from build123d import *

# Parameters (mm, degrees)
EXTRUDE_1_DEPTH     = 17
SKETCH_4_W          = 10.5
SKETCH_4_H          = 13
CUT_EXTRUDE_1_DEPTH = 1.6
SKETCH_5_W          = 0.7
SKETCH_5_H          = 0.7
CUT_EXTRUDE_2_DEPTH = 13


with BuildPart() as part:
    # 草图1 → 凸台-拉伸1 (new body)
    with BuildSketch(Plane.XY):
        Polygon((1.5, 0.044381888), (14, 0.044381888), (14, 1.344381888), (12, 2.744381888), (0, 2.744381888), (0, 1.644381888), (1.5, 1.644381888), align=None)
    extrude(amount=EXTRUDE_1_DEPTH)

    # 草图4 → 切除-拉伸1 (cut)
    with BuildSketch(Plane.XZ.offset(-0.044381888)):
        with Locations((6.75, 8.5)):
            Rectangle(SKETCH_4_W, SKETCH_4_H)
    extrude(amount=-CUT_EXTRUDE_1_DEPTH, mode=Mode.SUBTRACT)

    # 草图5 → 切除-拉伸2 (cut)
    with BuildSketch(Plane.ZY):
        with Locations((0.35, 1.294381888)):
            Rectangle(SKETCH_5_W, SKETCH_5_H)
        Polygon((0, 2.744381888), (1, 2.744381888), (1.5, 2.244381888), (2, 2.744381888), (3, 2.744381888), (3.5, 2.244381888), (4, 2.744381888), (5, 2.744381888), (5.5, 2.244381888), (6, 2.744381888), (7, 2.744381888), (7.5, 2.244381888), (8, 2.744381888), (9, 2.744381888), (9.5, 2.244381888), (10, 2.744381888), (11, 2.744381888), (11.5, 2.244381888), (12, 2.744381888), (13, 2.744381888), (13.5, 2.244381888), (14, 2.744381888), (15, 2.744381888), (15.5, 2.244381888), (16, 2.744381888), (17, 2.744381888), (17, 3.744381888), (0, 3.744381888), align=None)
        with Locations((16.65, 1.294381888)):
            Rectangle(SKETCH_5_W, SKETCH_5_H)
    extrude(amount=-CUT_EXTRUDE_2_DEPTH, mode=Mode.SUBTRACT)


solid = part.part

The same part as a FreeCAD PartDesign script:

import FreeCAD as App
import Part
import Sketcher
Q = App.Units.Quantity

doc = App.newDocument("Part")
body = doc.addObject("PartDesign::Body", "Body")

# Sketch on XY plane
sketch1 = body.newObject("Sketcher::SketchObject", "Sketch")
sketch1.AttachmentSupport = (doc.getObject("XY_Plane"), [""])
sketch1.MapMode = "FlatFace"
sketch1.addGeometry([
    Part.LineSegment(App.Vector(1.5, 0, 0), App.Vector(14, 0, 0)),  # 0
    Part.LineSegment(App.Vector(14, 0, 0), App.Vector(14, 1.3, 0)),  # 1
    Part.LineSegment(App.Vector(14, 1.3, 0), App.Vector(12, 2.7, 0)),  # 2
    Part.LineSegment(App.Vector(12, 2.7, 0), App.Vector(0, 2.7, 0)),  # 3
    Part.LineSegment(App.Vector(0, 2.7, 0), App.Vector(0, 1.6, 0)),  # 4
    Part.LineSegment(App.Vector(0, 1.6, 0), App.Vector(1.5, 1.6, 0)),  # 5
    Part.LineSegment(App.Vector(1.5, 1.6, 0), App.Vector(1.5, 0, 0)),  # 6
], False)
sketch1.addConstraint([
    Sketcher.Constraint("Coincident", 0, 2, 1, 1),
    Sketcher.Constraint("Coincident", 1, 2, 2, 1),
    Sketcher.Constraint("Coincident", 2, 2, 3, 1),
    Sketcher.Constraint("Coincident", 3, 2, 4, 1),
    Sketcher.Constraint("Coincident", 4, 2, 5, 1),
    Sketcher.Constraint("Coincident", 5, 2, 6, 1),
    Sketcher.Constraint("Coincident", 6, 2, 0, 1),
    Sketcher.Constraint("Horizontal", 0),
    Sketcher.Constraint("Vertical", 1),
    Sketcher.Constraint("Horizontal", 3),
    Sketcher.Constraint("Vertical", 4),
    Sketcher.Constraint("Horizontal", 5),
    Sketcher.Constraint("Vertical", 6),
    Sketcher.Constraint("PointOnObject", 3, 2, -2),
    Sketcher.Constraint("DistanceX", 3, 2, 3, 1, Q("12 mm")),
    Sketcher.Constraint("DistanceX", 0, 1, 0, 2, Q("12.5 mm")),
    Sketcher.Constraint("DistanceX", 5, 1, 5, 2, Q("1.5 mm")),
    Sketcher.Constraint("DistanceY", 1, 1, 1, 2, Q("1.3 mm")),
    Sketcher.Constraint("DistanceY", 4, 2, 4, 1, Q("1.1 mm")),
    Sketcher.Constraint("DistanceY", 6, 2, 6, 1, Q("1.6 mm")),
    Sketcher.Constraint("DistanceY", -1, 1, 0, 2, Q("0.044382 mm")),
])
pad1 = body.newObject("PartDesign::Pad", "Pad")
pad1.Profile = sketch1
pad1.Length = 17

# Sketch on XZ plane
sketch2 = body.newObject("Sketcher::SketchObject", "Sketch001")
sketch2.AttachmentSupport = (doc.getObject("XZ_Plane"), [""])
sketch2.MapMode = "FlatFace"
sketch2.AttachmentOffset = App.Placement(App.Vector(0, 0, -0.044382), App.Rotation())
sketch2.addGeometry([
    Part.LineSegment(App.Vector(2, 15, 0), App.Vector(2, 2, 0)),
    Part.LineSegment(App.Vector(2, 2, 0), App.Vector(12, 2, 0)),
    Part.LineSegment(App.Vector(12, 2, 0), App.Vector(12, 15, 0)),
    Part.LineSegment(App.Vector(12, 15, 0), App.Vector(2, 15, 0)),
], False)
sketch2.addConstraint([
    Sketcher.Constraint("Coincident", 0, 2, 1, 1),
    Sketcher.Constraint("Coincident", 1, 2, 2, 1),
    Sketcher.Constraint("Coincident", 2, 2, 3, 1),
    Sketcher.Constraint("Coincident", 3, 2, 0, 1),
    Sketcher.Constraint("Vertical", 0),
    Sketcher.Constraint("Horizontal", 1),
    Sketcher.Constraint("Vertical", 2),
    Sketcher.Constraint("Horizontal", 3),
    Sketcher.Constraint("DistanceY", 0, 2, 0, 1, Q("13 mm")),
    Sketcher.Constraint("DistanceX", 1, 1, 1, 2, Q("10.5 mm")),
    Sketcher.Constraint("DistanceY", -1, 1, 0, 2, Q("2 mm")),
    Sketcher.Constraint("DistanceX", -1, 1, 1, 2, Q("12 mm")),
])
pocket1 = body.newObject("PartDesign::Pocket", "Pocket")
pocket1.Profile = sketch2
pocket1.Length = 1.6

# Sketch on YZ plane
sketch3 = body.newObject("Sketcher::SketchObject", "Sketch002")
sketch3.AttachmentSupport = (doc.getObject("YZ_Plane"), [""])
sketch3.MapMode = "FlatFace"
sketch3.addGeometry([
    Part.LineSegment(App.Vector(1.6, 0, 0), App.Vector(0.9, 0, 0)),  # 0
    Part.LineSegment(App.Vector(0.9, 0, 0), App.Vector(0.9, 0.7, 0)),  # 1
    Part.LineSegment(App.Vector(0.9, 0.7, 0), App.Vector(1.6, 0.7, 0)),  # 2
    Part.LineSegment(App.Vector(1.6, 0.7, 0), App.Vector(1.6, 0, 0)),  # 3
    Part.LineSegment(App.Vector(2.7, 0, 0), App.Vector(2.7, 1, 0)),  # 4
    Part.LineSegment(App.Vector(2.7, 1, 0), App.Vector(2.2, 1.5, 0)),  # 5
    Part.LineSegment(App.Vector(2.2, 1.5, 0), App.Vector(2.7, 2, 0)),  # 6
    Part.LineSegment(App.Vector(2.7, 2, 0), App.Vector(2.7, 3, 0)),  # 7
    Part.LineSegment(App.Vector(2.7, 3, 0), App.Vector(2.2, 3.5, 0)),  # 8
    Part.LineSegment(App.Vector(2.2, 3.5, 0), App.Vector(2.7, 4, 0)),  # 9
    Part.LineSegment(App.Vector(2.7, 4, 0), App.Vector(2.7, 5, 0)),  # 10
    Part.LineSegment(App.Vector(2.7, 5, 0), App.Vector(2.2, 5.5, 0)),  # 11
    Part.LineSegment(App.Vector(2.2, 5.5, 0), App.Vector(2.7, 6, 0)),  # 12
    Part.LineSegment(App.Vector(2.7, 6, 0), App.Vector(2.7, 7, 0)),  # 13
    Part.LineSegment(App.Vector(2.7, 7, 0), App.Vector(2.2, 7.5, 0)),  # 14
    Part.LineSegment(App.Vector(2.2, 7.5, 0), App.Vector(2.7, 8, 0)),  # 15
    Part.LineSegment(App.Vector(2.7, 8, 0), App.Vector(2.7, 9, 0)),  # 16
    Part.LineSegment(App.Vector(2.7, 9, 0), App.Vector(2.2, 9.5, 0)),  # 17
    Part.LineSegment(App.Vector(2.2, 9.5, 0), App.Vector(2.7, 10, 0)),  # 18
    Part.LineSegment(App.Vector(2.7, 10, 0), App.Vector(2.7, 11, 0)),  # 19
    Part.LineSegment(App.Vector(2.7, 11, 0), App.Vector(2.2, 11.5, 0)),  # 20
    Part.LineSegment(App.Vector(2.2, 11.5, 0), App.Vector(2.7, 12, 0)),  # 21
    Part.LineSegment(App.Vector(2.7, 12, 0), App.Vector(2.7, 13, 0)),  # 22
    Part.LineSegment(App.Vector(2.7, 13, 0), App.Vector(2.2, 13.5, 0)),  # 23
    Part.LineSegment(App.Vector(2.2, 13.5, 0), App.Vector(2.7, 14, 0)),  # 24
    Part.LineSegment(App.Vector(2.7, 14, 0), App.Vector(2.7, 15, 0)),  # 25
    Part.LineSegment(App.Vector(2.7, 15, 0), App.Vector(2.2, 15.5, 0)),  # 26
    Part.LineSegment(App.Vector(2.2, 15.5, 0), App.Vector(2.7, 16, 0)),  # 27
    Part.LineSegment(App.Vector(2.7, 16, 0), App.Vector(2.7, 17, 0)),  # 28
    Part.LineSegment(App.Vector(2.7, 17, 0), App.Vector(3.7, 17, 0)),  # 29
    Part.LineSegment(App.Vector(3.7, 17, 0), App.Vector(3.7, 0, 0)),  # 30
    Part.LineSegment(App.Vector(3.7, 0, 0), App.Vector(2.7, 0, 0)),  # 31
    Part.LineSegment(App.Vector(1.6, 16.3, 0), App.Vector(0.9, 16.3, 0)),  # 32
    Part.LineSegment(App.Vector(0.9, 16.3, 0), App.Vector(0.9, 17, 0)),  # 33
    Part.LineSegment(App.Vector(0.9, 17, 0), App.Vector(1.6, 17, 0)),  # 34
    Part.LineSegment(App.Vector(1.6, 17, 0), App.Vector(1.6, 16.3, 0)),  # 35
], False)
sketch3.addConstraint([
    Sketcher.Constraint("Coincident", 0, 2, 1, 1),
    Sketcher.Constraint("Coincident", 1, 2, 2, 1),
    Sketcher.Constraint("Coincident", 2, 2, 3, 1),
    Sketcher.Constraint("Coincident", 3, 2, 0, 1),
    Sketcher.Constraint("Coincident", 4, 2, 5, 1),
    Sketcher.Constraint("Coincident", 5, 2, 6, 1),
    Sketcher.Constraint("Coincident", 6, 2, 7, 1),
    Sketcher.Constraint("Coincident", 7, 2, 8, 1),
    Sketcher.Constraint("Coincident", 8, 2, 9, 1),
    Sketcher.Constraint("Coincident", 9, 2, 10, 1),
    Sketcher.Constraint("Coincident", 10, 2, 11, 1),
    Sketcher.Constraint("Coincident", 11, 2, 12, 1),
    Sketcher.Constraint("Coincident", 12, 2, 13, 1),
    Sketcher.Constraint("Coincident", 13, 2, 14, 1),
    Sketcher.Constraint("Coincident", 14, 2, 15, 1),
    Sketcher.Constraint("Coincident", 15, 2, 16, 1),
    Sketcher.Constraint("Coincident", 16, 2, 17, 1),
    Sketcher.Constraint("Coincident", 17, 2, 18, 1),
    Sketcher.Constraint("Coincident", 18, 2, 19, 1),
    Sketcher.Constraint("Coincident", 19, 2, 20, 1),
    Sketcher.Constraint("Coincident", 20, 2, 21, 1),
    Sketcher.Constraint("Coincident", 21, 2, 22, 1),
    Sketcher.Constraint("Coincident", 22, 2, 23, 1),
    Sketcher.Constraint("Coincident", 23, 2, 24, 1),
    Sketcher.Constraint("Coincident", 24, 2, 25, 1),
    Sketcher.Constraint("Coincident", 25, 2, 26, 1),
    Sketcher.Constraint("Coincident", 26, 2, 27, 1),
    Sketcher.Constraint("Coincident", 27, 2, 28, 1),
    Sketcher.Constraint("Coincident", 28, 2, 29, 1),
    Sketcher.Constraint("Coincident", 29, 2, 30, 1),
    Sketcher.Constraint("Coincident", 30, 2, 31, 1),
    Sketcher.Constraint("Coincident", 31, 2, 4, 1),
    Sketcher.Constraint("Coincident", 32, 2, 33, 1),
    Sketcher.Constraint("Coincident", 33, 2, 34, 1),
    Sketcher.Constraint("Coincident", 34, 2, 35, 1),
    Sketcher.Constraint("Coincident", 35, 2, 32, 1),
    Sketcher.Constraint("Horizontal", 0),
    Sketcher.Constraint("Vertical", 1),
    Sketcher.Constraint("Horizontal", 2),
    Sketcher.Constraint("Vertical", 3),
    Sketcher.Constraint("Vertical", 4),
    Sketcher.Constraint("Vertical", 7),
    Sketcher.Constraint("Vertical", 10),
    Sketcher.Constraint("Vertical", 13),
    Sketcher.Constraint("Vertical", 16),
    Sketcher.Constraint("Vertical", 19),
    Sketcher.Constraint("Vertical", 22),
    Sketcher.Constraint("Vertical", 25),
    Sketcher.Constraint("Vertical", 28),
    Sketcher.Constraint("Horizontal", 29),
    Sketcher.Constraint("Vertical", 30),
    Sketcher.Constraint("Horizontal", 31),
    Sketcher.Constraint("Horizontal", 32),
    Sketcher.Constraint("Vertical", 33),
    Sketcher.Constraint("Horizontal", 34),
    Sketcher.Constraint("Vertical", 35),
    Sketcher.Constraint("PointOnObject", 0, 2, -1),
    Sketcher.Constraint("PointOnObject", 30, 2, -1),
    Sketcher.Constraint("Perpendicular", 5, 6),
    Sketcher.Constraint("Perpendicular", 6, 8),
    Sketcher.Constraint("Perpendicular", 8, 9),
    Sketcher.Constraint("Perpendicular", 9, 11),
    Sketcher.Constraint("Perpendicular", 11, 12),
    Sketcher.Constraint("Perpendicular", 12, 14),
    Sketcher.Constraint("Perpendicular", 14, 15),
    Sketcher.Constraint("Perpendicular", 15, 17),
    Sketcher.Constraint("Perpendicular", 17, 18),
    Sketcher.Constraint("Perpendicular", 18, 20),
    Sketcher.Constraint("Perpendicular", 20, 21),
    Sketcher.Constraint("Perpendicular", 21, 23),
    Sketcher.Constraint("Perpendicular", 23, 24),
    Sketcher.Constraint("Perpendicular", 24, 26),
    Sketcher.Constraint("Perpendicular", 26, 27),
    Sketcher.Constraint("Horizontal", 29, 2, 33, 2),
    Sketcher.Constraint("Vertical", 4, 2, 6, 2),
    Sketcher.Constraint("Vertical", 5, 2, 8, 2),
    Sketcher.Constraint("Vertical", 7, 2, 9, 2),
    Sketcher.Constraint("Vertical", 8, 2, 11, 2),
    Sketcher.Constraint("Vertical", 10, 2, 12, 2),
    Sketcher.Constraint("Vertical", 11, 2, 14, 2),
    Sketcher.Constraint("Vertical", 13, 2, 15, 2),
    Sketcher.Constraint("Vertical", 14, 2, 17, 2),
    Sketcher.Constraint("Vertical", 16, 2, 18, 2),
    Sketcher.Constraint("Vertical", 17, 2, 20, 2),
    Sketcher.Constraint("Vertical", 19, 2, 21, 2),
    Sketcher.Constraint("Vertical", 20, 2, 23, 2),
    Sketcher.Constraint("Vertical", 22, 2, 24, 2),
    Sketcher.Constraint("Vertical", 23, 2, 26, 2),
    Sketcher.Constraint("Vertical", 25, 2, 27, 2),
    Sketcher.Constraint("Vertical", 1, 2, 32, 2),
    Sketcher.Constraint("Vertical", 3, 2, 34, 2),
    Sketcher.Constraint("Equal", 34, 1),
    Sketcher.Constraint("Equal", 31, 4),
    Sketcher.Constraint("Equal", 4, 7),
    Sketcher.Constraint("Equal", 7, 10),
    Sketcher.Constraint("Equal", 10, 13),
    Sketcher.Constraint("Equal", 13, 16),
    Sketcher.Constraint("Equal", 16, 19),
    Sketcher.Constraint("Equal", 19, 22),
    Sketcher.Constraint("Equal", 22, 25),
    Sketcher.Constraint("Equal", 25, 28),
    Sketcher.Constraint("Equal", 3, 33),
    Sketcher.Constraint("Equal", 5, 6),
    Sketcher.Constraint("DistanceX", 29, 1, 29, 2, Q("1 mm")),
    Sketcher.Constraint("DistanceY", 30, 2, 30, 1, Q("17 mm")),
    Sketcher.Constraint("DistanceX", 0, 2, 0, 1, Q("0.7 mm")),
    Sketcher.Constraint("DistanceX", 2, 2, 4, 2, Q("1.1 mm")),
    Sketcher.Constraint("DistanceX", -1, 1, 0, 2, Q("0.944382 mm")),
])
pocket2 = body.newObject("PartDesign::Pocket", "Pocket001")
pocket2.Profile = sketch3
pocket2.Length = 13
pocket2.Reversed = True

doc.recompute()
